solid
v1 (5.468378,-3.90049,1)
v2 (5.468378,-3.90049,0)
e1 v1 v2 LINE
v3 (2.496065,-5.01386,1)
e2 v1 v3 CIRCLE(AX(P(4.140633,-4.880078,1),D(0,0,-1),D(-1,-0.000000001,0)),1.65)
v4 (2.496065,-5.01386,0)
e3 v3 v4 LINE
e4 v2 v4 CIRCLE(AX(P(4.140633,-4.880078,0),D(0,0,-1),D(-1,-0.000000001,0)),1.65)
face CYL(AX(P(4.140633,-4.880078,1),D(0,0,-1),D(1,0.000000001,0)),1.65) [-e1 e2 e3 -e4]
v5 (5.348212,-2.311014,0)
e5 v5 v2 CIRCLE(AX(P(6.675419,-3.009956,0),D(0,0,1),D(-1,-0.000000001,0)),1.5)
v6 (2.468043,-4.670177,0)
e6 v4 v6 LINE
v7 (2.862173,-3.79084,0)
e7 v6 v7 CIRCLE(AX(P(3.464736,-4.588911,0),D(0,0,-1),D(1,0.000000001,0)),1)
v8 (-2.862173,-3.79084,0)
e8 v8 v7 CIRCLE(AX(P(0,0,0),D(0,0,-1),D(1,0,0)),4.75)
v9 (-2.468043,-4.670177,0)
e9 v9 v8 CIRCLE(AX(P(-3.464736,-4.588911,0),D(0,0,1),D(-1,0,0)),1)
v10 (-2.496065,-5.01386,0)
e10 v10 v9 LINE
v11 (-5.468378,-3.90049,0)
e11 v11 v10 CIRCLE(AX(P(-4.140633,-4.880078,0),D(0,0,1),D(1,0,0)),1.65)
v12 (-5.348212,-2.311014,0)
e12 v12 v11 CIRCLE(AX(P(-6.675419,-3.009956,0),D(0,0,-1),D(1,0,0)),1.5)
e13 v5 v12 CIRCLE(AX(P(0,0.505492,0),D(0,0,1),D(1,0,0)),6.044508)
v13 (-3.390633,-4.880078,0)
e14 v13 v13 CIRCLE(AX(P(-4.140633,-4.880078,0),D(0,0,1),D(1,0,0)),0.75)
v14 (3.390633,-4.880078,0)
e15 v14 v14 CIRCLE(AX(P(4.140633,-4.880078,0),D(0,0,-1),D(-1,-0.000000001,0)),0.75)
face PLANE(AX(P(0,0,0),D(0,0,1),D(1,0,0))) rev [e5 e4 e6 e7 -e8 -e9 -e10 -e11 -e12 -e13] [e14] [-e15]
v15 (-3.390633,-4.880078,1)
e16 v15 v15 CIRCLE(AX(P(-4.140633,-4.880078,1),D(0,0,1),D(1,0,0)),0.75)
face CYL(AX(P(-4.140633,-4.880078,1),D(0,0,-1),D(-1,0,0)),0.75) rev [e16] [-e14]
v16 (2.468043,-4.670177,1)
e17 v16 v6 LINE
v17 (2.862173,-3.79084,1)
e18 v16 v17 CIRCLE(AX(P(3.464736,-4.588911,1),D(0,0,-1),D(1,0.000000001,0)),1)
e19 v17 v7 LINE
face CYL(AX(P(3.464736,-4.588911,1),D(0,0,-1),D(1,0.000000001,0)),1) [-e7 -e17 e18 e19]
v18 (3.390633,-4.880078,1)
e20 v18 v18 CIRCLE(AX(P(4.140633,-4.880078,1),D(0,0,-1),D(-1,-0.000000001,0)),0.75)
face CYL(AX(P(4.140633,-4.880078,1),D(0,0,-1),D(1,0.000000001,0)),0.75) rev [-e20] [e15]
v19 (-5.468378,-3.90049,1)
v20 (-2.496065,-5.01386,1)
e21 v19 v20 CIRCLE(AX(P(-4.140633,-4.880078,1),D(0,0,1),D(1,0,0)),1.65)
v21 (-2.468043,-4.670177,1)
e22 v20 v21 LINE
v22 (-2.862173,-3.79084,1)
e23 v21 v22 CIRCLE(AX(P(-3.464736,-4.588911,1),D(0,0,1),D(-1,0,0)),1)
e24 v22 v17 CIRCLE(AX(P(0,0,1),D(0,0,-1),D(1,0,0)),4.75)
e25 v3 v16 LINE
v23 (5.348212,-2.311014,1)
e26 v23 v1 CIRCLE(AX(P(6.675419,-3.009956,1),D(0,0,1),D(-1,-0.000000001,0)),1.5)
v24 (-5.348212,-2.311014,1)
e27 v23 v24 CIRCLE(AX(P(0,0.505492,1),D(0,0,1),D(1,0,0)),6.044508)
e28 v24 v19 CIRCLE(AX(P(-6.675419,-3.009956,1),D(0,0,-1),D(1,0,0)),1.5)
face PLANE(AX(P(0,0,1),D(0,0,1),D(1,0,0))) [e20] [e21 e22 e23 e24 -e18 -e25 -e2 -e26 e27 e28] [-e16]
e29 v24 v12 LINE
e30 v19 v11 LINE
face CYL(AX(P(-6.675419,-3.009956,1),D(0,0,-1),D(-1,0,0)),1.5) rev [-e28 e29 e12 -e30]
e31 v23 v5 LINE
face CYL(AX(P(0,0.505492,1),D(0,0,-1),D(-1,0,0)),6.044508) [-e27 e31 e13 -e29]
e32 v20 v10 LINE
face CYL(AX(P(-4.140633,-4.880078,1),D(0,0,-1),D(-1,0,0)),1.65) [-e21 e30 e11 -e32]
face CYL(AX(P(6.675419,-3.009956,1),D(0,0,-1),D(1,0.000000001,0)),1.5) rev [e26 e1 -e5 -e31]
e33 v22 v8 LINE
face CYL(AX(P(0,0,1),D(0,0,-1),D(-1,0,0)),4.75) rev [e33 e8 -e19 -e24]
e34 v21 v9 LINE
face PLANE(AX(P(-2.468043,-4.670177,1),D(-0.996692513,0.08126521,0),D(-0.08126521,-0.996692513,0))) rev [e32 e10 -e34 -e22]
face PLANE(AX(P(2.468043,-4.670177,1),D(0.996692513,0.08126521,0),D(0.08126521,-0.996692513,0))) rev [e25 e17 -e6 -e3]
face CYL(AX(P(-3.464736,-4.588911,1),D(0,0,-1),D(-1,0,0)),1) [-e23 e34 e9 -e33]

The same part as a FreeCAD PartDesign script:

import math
import FreeCAD as App
import Part
import Sketcher
from FreeCAD import Vector

doc = App.newDocument("Part")
params = doc.addObject("Spreadsheet::Sheet", "Params")
for row, (alias, value) in enumerate([
    ("sketch1_radius", "1 mm"),
    ("sketch1_diameter", "1.5 mm"),
    ("sketch1_radius2", "1.5 mm"),
    ("sketch1_radius3", "1.65 mm"),
    ("sketch1_radius4", "4.75 mm"),
    ("pad1_length", "1 mm"),
], start=1):
    params.set(f"A{row}", alias)
    params.set(f"B{row}", "=" + value)
    params.setAlias(f"B{row}", alias)

body = doc.addObject("PartDesign::Body", "Body")

# Sketch on XY plane
sketch1 = body.newObject("Sketcher::SketchObject", "Sketch")
sketch1.AttachmentSupport = (doc.getObject("XY_Plane"), [""])
sketch1.MapMode = "FlatFace"
sketch1.addGeometry([
    Part.LineSegment(Vector(0, 4.75, 0), Vector(0, 6.55, 0)),  # 0
    Part.ArcOfCircle(Part.Circle(Vector(0, 0.51, 0), Vector(0, 0, 1), 6.04), math.radians(90), math.radians(208)),  # 1
    Part.ArcOfCircle(Part.Circle(Vector(-6.68, -3.01, 0), Vector(0, 0, 1), 1.5), math.radians(-36), math.radians(28)),  # 2
    Part.ArcOfCircle(Part.Circle(Vector(-4.14, -4.88, 0), Vector(0, 0, 1), 1.65), math.radians(144), math.radians(355)),  # 3
    Part.LineSegment(Vector(-2.5, -5.01, 0), Vector(-2.47, -4.67, 0)),  # 4
    Part.ArcOfCircle(Part.Circle(Vector(-3.46, -4.59, 0), Vector(0, 0, 1), 1), math.radians(-5), math.radians(53)),  # 5
    Part.ArcOfCircle(Part.Circle(Vector(0, 0, 0), Vector(0, 0, 1), 4.75), math.radians(90), math.radians(233)),  # 6
    Part.Circle(Vector(-4.14, -4.88, 0), Vector(0, 0, 1), 0.75),  # 7
], False)
sketch1.addConstraint([
    Sketcher.Constraint("Coincident", 0, 2, 1, 1),
    Sketcher.Constraint("Tangent", 1, 2, 2, 2),
    Sketcher.Constraint("Tangent", 2, 1, 3, 1),
    Sketcher.Constraint("Coincident", 3, 2, 4, 1),
    Sketcher.Constraint("Tangent", 4, 2, 5, 1),
    Sketcher.Constraint("Tangent", 5, 2, 6, 2),
    Sketcher.Constraint("Coincident", 6, 1, 0, 1),
    Sketcher.Constraint("Vertical", 0),
    Sketcher.Constraint("Coincident", 6, 3, -1, 1),
    Sketcher.Constraint("Coincident", 7, 3, 3, 3),
    Sketcher.Constraint("PointOnObject", 1, 3, -2),
    Sketcher.Constraint("PointOnObject", 0, 2, -2),
    Sketcher.Constraint("Radius", 5, 1.0),
    Sketcher.Constraint("Diameter", 7, 1.5),
    Sketcher.Constraint("Radius", 2, 1.5),
    Sketcher.Constraint("Radius", 3, 1.65),
    Sketcher.Constraint("Radius", 6, 4.75),
    Sketcher.Constraint("DistanceY", 0, 1, 0, 2, 1.8),
    Sketcher.Constraint("Radius", 1, 6.044508),
    Sketcher.Constraint("DistanceY", 3, 3, 4, 2, 0.209901),
    Sketcher.Constraint("DistanceX", 2, 3, -1, 1, 6.675419),
    Sketcher.Constraint("DistanceY", 5, 3, -1, 1, 4.588911),
    Sketcher.Constraint("DistanceY", 3, 2, -1, 1, 5.01386),
])
sketch1.setExpression("Constraints[12]", "Params.sketch1_radius")
sketch1.setExpression("Constraints[13]", "Params.sketch1_diameter")
sketch1.setExpression("Constraints[14]", "Params.sketch1_radius2")
sketch1.setExpression("Constraints[15]", "Params.sketch1_radius3")
sketch1.setExpression("Constraints[16]", "Params.sketch1_radius4")
pad1 = body.newObject("PartDesign::Pad", "Pad")
pad1.Profile = sketch1
pad1.setExpression("Length", "Params.pad1_length")
body2 = doc.addObject("PartDesign::Body", "Body001")
doc.recompute()

body2.BaseFeature = body
doc.recompute()

mirroring = doc.addObject("Part::Mirroring", "Mirroring")
mirroring.Source = body
mirroring.Base = Vector(0, 4.75, 1)
mirroring.Normal = Vector(-1, 0, 0)
body3 = doc.addObject("PartDesign::Body", "Body002")
body3.BaseFeature = mirroring
boolean = body2.newObject("PartDesign::Boolean", "Boolean")
boolean.Type = "Fuse"
boolean.addObjects([body3])
doc.recompute()
mirroring.Visibility = False

doc.recompute()
